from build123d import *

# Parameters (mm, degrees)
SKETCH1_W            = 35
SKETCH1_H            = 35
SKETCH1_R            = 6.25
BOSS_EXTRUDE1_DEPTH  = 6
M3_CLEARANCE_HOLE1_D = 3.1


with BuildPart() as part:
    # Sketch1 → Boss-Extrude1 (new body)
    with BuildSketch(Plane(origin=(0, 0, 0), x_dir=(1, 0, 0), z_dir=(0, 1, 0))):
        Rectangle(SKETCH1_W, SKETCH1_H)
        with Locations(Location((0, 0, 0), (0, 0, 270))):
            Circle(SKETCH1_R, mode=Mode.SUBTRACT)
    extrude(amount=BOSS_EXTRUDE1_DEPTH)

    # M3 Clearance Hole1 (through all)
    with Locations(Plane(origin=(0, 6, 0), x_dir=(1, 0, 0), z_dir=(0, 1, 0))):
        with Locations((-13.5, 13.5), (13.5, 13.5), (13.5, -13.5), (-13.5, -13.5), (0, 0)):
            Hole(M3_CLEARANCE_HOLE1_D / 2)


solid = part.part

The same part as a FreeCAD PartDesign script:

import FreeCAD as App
import Part
import Sketcher
Q = App.Units.Quantity

doc = App.newDocument("Part")
body = doc.addObject("PartDesign::Body", "Body")

# Sketch on XZ plane
sketch1 = body.newObject("Sketcher::SketchObject", "Sketch")
sketch1.AttachmentSupport = (doc.getObject("XZ_Plane"), [""])
sketch1.MapMode = "FlatFace"
sketch1.addGeometry(Part.LineSegment(App.Vector(-17.5, -17.5, 0), App.Vector(-17.5, 17.5, 0)), False)
sketch1.addGeometry(Part.LineSegment(App.Vector(-17.5, 17.5, 0), App.Vector(17.5, 17.5, 0)), False)
sketch1.addGeometry(Part.LineSegment(App.Vector(17.5, 17.5, 0), App.Vector(17.5, -17.5, 0)), False)
sketch1.addGeometry(Part.LineSegment(App.Vector(17.5, -17.5, 0), App.Vector(-17.5, -17.5, 0)), False)
sketch1.addGeometry(Part.Circle(App.Vector(0, 0, 0), App.Vector(0, 0, 1), 6.25), False)
sketch1.addConstraint(Sketcher.Constraint("Coincident", 0, 2, 1, 1))
sketch1.addConstraint(Sketcher.Constraint("Coincident", 1, 2, 2, 1))
sketch1.addConstraint(Sketcher.Constraint("Coincident", 2, 2, 3, 1))
sketch1.addConstraint(Sketcher.Constraint("Coincident", 3, 2, 0, 1))
sketch1.addConstraint(Sketcher.Constraint("Vertical", 0))
sketch1.addConstraint(Sketcher.Constraint("Horizontal", 1))
sketch1.addConstraint(Sketcher.Constraint("Vertical", 2))
sketch1.addConstraint(Sketcher.Constraint("Horizontal", 3))
sketch1.addConstraint(Sketcher.Constraint("Coincident", 4, 3, -1, 1))
sketch1.addConstraint(Sketcher.Constraint("Symmetric", 0, 2, 2, 2, -1, 1))
sketch1.addConstraint(Sketcher.Constraint("Equal", 3, 0))
sketch1.addConstraint(Sketcher.Constraint("Diameter", 4, Q("12.5 mm")))
sketch1.addConstraint(Sketcher.Constraint("DistanceX", 1, 1, 1, 2, Q("35 mm")))
pad1 = body.newObject("PartDesign::Pad", "Pad")
pad1.Profile = sketch1
pad1.Length = 6
pad1.Reversed = True

# Sketch on XZ plane
sketch2 = body.newObject("Sketcher::SketchObject", "Sketch001")
sketch2.AttachmentSupport = (doc.getObject("XZ_Plane"), [""])
sketch2.MapMode = "FlatFace"
sketch2.AttachmentOffset = App.Placement(App.Vector(0, 0, -6), App.Rotation())
sketch2.addGeometry(Part.Circle(App.Vector(-13.5, -13.5, 0), App.Vector(0, 0, 1), 1.55), False)
sketch2.addGeometry(Part.Circle(App.Vector(13.5, -13.5, 0), App.Vector(0, 0, 1), 1.55), False)
sketch2.addGeometry(Part.Circle(App.Vector(13.5, 13.5, 0), App.Vector(0, 0, 1), 1.55), False)
sketch2.addGeometry(Part.Circle(App.Vector(-13.5, 13.5, 0), App.Vector(0, 0, 1), 1.55), False)
sketch2.addGeometry(Part.Circle(App.Vector(0, 0, 0), App.Vector(0, 0, 1), 1.55), False)
sketch2.addConstraint(Sketcher.Constraint("Coincident", 4, 3, -1, 1))
sketch2.addConstraint(Sketcher.Constraint("Equal", 0, 1))
sketch2.addConstraint(Sketcher.Constraint("Equal", 1, 2))
sketch2.addConstraint(Sketcher.Constraint("Equal", 2, 3))
sketch2.addConstraint(Sketcher.Constraint("Equal", 3, 4))
sketch2.addConstraint(Sketcher.Constraint("Symmetric", 0, 3, 2, 3, -1, 1))
sketch2.addConstraint(Sketcher.Constraint("Symmetric", 1, 3, 3, 3, -1, 1))
sketch2.addConstraint(Sketcher.Constraint("Symmetric", 0, 3, 1, 3, -2))
sketch2.addConstraint(Sketcher.Constraint("Diameter", 0, Q("3.1 mm")))
sketch2.addConstraint(Sketcher.Constraint("DistanceX", 0, 3, 1, 3, Q("27 mm")))
sketch2.addConstraint(Sketcher.Constraint("DistanceY", 1, 3, 2, 3, Q("27 mm")))
doc.recompute()
hole = body.newObject("PartDesign::Hole", "Hole")
hole.Profile = sketch2
hole.ThreadType = "None"
hole.Diameter = 3.1
hole.DepthType = "ThroughAll"
hole.Reversed = True

doc.recompute()
